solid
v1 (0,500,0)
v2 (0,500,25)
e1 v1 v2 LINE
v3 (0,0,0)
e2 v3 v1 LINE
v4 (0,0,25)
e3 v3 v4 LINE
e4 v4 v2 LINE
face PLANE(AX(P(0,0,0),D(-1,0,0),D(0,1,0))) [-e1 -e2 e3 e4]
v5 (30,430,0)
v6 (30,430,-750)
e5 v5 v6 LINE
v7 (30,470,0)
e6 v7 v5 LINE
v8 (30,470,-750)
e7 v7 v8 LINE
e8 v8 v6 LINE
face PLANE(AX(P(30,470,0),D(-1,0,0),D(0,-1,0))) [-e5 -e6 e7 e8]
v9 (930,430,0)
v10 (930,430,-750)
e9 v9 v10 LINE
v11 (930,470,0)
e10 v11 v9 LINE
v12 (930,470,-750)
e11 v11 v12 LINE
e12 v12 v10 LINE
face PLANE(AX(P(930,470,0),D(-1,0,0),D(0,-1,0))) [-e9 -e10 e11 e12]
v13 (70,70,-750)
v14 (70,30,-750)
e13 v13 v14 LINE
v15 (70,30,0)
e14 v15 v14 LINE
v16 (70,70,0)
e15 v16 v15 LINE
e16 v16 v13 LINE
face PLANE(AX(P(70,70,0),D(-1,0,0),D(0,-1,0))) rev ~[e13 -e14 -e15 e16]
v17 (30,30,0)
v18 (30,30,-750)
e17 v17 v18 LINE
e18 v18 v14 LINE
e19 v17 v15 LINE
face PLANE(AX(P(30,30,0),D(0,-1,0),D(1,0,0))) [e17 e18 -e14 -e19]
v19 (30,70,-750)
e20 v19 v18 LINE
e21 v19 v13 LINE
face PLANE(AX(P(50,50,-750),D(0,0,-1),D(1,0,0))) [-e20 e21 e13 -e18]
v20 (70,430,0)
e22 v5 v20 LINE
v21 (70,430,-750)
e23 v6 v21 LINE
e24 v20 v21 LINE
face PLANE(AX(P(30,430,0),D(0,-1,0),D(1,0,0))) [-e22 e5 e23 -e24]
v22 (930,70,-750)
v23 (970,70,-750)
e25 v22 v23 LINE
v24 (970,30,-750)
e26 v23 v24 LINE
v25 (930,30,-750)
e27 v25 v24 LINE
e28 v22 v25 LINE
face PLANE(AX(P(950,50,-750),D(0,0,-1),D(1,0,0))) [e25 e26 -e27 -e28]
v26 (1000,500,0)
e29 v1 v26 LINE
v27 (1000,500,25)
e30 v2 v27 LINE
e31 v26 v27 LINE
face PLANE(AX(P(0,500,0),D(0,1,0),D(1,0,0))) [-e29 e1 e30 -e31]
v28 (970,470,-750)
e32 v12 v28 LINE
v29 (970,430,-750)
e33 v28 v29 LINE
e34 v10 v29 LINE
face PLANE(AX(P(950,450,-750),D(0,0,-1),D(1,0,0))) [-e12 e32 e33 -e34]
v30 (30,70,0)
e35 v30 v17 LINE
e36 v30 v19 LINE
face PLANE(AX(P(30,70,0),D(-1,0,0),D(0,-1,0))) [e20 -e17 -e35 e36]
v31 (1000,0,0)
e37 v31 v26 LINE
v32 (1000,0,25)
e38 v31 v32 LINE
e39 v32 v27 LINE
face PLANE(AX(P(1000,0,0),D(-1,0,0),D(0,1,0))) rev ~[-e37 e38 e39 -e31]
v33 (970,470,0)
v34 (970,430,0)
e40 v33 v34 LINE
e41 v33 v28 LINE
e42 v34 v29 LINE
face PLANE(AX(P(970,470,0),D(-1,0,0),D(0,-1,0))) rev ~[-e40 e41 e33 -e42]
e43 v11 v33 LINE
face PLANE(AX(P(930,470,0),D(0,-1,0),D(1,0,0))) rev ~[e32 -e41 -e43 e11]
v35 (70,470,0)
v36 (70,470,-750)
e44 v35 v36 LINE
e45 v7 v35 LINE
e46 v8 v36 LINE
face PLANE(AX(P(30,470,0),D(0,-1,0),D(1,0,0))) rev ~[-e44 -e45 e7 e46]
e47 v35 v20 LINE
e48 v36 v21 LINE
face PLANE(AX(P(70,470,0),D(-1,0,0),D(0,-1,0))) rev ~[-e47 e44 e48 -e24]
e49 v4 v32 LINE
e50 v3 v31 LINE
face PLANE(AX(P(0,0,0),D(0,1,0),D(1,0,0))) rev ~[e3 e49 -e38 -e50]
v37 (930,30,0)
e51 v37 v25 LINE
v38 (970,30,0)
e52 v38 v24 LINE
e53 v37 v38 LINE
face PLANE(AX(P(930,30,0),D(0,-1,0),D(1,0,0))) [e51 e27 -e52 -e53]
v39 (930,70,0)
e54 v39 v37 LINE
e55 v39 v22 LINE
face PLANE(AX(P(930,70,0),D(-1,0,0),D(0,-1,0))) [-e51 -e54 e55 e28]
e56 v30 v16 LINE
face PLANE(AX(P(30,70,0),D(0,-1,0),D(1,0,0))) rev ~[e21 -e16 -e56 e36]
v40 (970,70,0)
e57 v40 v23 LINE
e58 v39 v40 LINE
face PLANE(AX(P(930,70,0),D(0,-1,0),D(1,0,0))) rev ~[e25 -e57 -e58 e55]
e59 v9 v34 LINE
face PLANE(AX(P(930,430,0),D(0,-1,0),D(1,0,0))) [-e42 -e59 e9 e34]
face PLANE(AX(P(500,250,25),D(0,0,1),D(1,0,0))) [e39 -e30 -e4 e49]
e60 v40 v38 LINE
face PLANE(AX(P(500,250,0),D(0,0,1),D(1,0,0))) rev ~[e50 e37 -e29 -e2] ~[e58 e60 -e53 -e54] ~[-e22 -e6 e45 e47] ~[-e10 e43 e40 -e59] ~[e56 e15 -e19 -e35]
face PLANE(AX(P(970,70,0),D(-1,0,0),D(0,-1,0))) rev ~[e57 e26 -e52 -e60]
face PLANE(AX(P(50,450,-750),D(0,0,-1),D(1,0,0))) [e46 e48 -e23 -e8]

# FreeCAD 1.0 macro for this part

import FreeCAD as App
import Part
import Sketcher


def add_polygon(sketch, points):
    """Adds a closed chain of lines whose ends are joined by coincident constraints."""
    first, n = sketch.GeometryCount, len(points)
    for a, b in zip(points, points[1:] + points[:1]):
        sketch.addGeometry(Part.LineSegment(App.Vector(*a, 0), App.Vector(*b, 0)), False)
    for i in range(n):
        sketch.addConstraint(Sketcher.Constraint("Coincident", first + i, 2, first + (i + 1) % n, 1))

doc = App.newDocument("Part")
body = doc.addObject("PartDesign::Body", "Body")

# Sketch on XY plane
sketch1 = doc.addObject("Sketcher::SketchObject", "Sketch")
body.addObject(sketch1)
sketch1.AttachmentSupport = (doc.XY_Plane, [""])
sketch1.MapMode = "FlatFace"
add_polygon(sketch1, [(0, 500), (0, 0), (1000, 0), (1000, 500)])  # lines 0-3
sketch1.addConstraint([
    Sketcher.Constraint("Vertical", 0),
    Sketcher.Constraint("Horizontal", 1),
    Sketcher.Constraint("Vertical", 2),
    Sketcher.Constraint("Horizontal", 3),
    Sketcher.Constraint("Coincident", 0, 2, -1, 1),
    Sketcher.Constraint("DistanceX", 1, 1, 1, 2, 1000.0),
    Sketcher.Constraint("DistanceY", 0, 2, 0, 1, 500.0),
])
pad1 = doc.addObject("PartDesign::Pad", "Pad")
body.addObject(pad1)
pad1.Profile = sketch1
pad1.Length = 25

# Sketch on XY plane
sketch2 = doc.addObject("Sketcher::SketchObject", "Sketch001")
body.addObject(sketch2)
sketch2.AttachmentSupport = (doc.XY_Plane, [""])
sketch2.MapMode = "FlatFace"
add_polygon(sketch2, [(30, 30), (30, 70), (70, 70), (70, 30)])  # lines 0-3
add_polygon(sketch2, [(30, 430), (30, 470), (70, 470), (70, 430)])  # lines 4-7
add_polygon(sketch2, [(930, 30), (930, 70), (970, 70), (970, 30)])  # lines 8-11
add_polygon(sketch2, [(930, 430), (930, 470), (970, 470), (970, 430)])  # lines 12-15
sketch2.addConstraint([
    Sketcher.Constraint("Vertical", 0),
    Sketcher.Constraint("Horizontal", 1),
    Sketcher.Constraint("Vertical", 2),
    Sketcher.Constraint("Horizontal", 3),
    Sketcher.Constraint("Vertical", 4),
    Sketcher.Constraint("Horizontal", 5),
    Sketcher.Constraint("Vertical", 6),
    Sketcher.Constraint("Horizontal", 7),
    Sketcher.Constraint("Vertical", 8),
    Sketcher.Constraint("Horizontal", 9),
    Sketcher.Constraint("Vertical", 10),
    Sketcher.Constraint("Horizontal", 11),
    Sketcher.Constraint("Vertical", 12),
    Sketcher.Constraint("Horizontal", 13),
    Sketcher.Constraint("Vertical", 14),
    Sketcher.Constraint("Horizontal", 15),
    Sketcher.Constraint("Horizontal", 1, 2, 8, 2),
    Sketcher.Constraint("Horizontal", 3, 2, 10, 2),
    Sketcher.Constraint("Horizontal", 5, 2, 12, 2),
    Sketcher.Constraint("Horizontal", 7, 2, 14, 2),
    Sketcher.Constraint("Vertical", 3, 2, 4, 2),
    Sketcher.Constraint("Vertical", 2, 2, 5, 2),
    Sketcher.Constraint("Vertical", 11, 2, 12, 2),
    Sketcher.Constraint("Vertical", 10, 2, 13, 2),
    Sketcher.Constraint("Equal", 7, 9),
    Sketcher.Constraint("Equal", 15, 0),
    Sketcher.Constraint("Equal", 2, 4),
    Sketcher.Constraint("DistanceX", 1, 1, 1, 2, 40.0),
    Sketcher.Constraint("DistanceX", -1, 1, 0, 2, 30.0),
    Sketcher.Constraint("DistanceY", -1, 1, 0, 2, 70.0),
    Sketcher.Constraint("DistanceY", -1, 1, 4, 2, 470.0),
    Sketcher.Constraint("DistanceX", -1, 1, 8, 2, 930.0),
])
pad2 = doc.addObject("PartDesign::Pad", "Pad001")
body.addObject(pad2)
pad2.Profile = sketch2
pad2.Length = 750
pad2.Reversed = True

doc.recompute()
